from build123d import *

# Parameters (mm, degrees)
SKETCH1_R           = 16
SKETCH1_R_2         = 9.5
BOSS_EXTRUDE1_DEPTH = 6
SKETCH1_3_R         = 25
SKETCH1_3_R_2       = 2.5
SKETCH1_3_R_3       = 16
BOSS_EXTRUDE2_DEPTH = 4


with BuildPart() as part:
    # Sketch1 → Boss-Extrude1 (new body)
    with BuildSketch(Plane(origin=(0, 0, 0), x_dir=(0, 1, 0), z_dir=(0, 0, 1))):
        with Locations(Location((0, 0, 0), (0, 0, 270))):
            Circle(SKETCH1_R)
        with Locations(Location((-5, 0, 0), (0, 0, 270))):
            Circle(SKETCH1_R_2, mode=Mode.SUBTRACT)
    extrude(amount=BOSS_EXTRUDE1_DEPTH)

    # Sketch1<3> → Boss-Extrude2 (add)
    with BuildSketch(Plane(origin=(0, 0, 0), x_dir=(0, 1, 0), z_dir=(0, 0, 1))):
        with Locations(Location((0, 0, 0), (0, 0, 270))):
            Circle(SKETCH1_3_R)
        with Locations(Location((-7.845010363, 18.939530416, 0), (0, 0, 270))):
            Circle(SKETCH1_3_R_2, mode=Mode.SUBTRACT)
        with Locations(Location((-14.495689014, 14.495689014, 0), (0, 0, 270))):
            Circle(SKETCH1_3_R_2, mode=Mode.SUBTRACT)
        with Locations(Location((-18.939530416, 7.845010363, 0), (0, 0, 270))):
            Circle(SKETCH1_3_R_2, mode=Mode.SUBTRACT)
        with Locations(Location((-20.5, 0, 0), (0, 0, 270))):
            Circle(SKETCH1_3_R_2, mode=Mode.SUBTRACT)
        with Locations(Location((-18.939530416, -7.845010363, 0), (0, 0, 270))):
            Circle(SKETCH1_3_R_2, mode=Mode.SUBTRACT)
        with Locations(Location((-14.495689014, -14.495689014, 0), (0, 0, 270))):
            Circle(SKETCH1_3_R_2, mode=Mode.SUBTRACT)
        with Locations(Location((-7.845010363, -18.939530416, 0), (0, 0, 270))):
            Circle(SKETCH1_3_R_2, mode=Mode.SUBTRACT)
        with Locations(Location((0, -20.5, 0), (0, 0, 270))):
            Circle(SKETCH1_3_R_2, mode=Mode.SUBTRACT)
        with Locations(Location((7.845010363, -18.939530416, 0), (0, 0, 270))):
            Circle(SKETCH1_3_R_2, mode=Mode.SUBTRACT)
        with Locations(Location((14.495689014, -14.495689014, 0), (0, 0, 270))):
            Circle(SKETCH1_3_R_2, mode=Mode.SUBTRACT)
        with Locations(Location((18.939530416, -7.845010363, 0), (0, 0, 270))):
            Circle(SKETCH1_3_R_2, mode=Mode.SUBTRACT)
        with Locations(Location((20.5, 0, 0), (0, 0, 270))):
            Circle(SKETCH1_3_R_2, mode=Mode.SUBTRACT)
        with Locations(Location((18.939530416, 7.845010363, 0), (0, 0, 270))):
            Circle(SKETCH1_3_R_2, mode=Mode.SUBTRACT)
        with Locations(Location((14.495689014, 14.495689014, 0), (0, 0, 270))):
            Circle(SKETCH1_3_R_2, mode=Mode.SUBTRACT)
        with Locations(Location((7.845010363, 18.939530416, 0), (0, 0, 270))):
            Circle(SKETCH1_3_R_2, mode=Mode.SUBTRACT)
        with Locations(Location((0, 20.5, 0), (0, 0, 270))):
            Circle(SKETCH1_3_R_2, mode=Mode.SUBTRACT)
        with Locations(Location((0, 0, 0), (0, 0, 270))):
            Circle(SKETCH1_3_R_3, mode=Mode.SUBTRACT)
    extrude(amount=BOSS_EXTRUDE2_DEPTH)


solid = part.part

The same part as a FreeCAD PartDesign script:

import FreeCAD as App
import Part
import Sketcher
from FreeCAD import Vector

doc = App.newDocument("Part")
body = doc.addObject("PartDesign::Body", "Body")

sketch1 = body.newObject("Sketcher::SketchObject", "Sketch")
sketch1.AttachmentSupport = (doc.getObject("XY_Plane"), [""])
sketch1.MapMode = "FlatFace"
sketch1.addGeometry([
    Part.Circle(Vector(0, 0, 0), Vector(0, 0, 1), 16),
    Part.Circle(Vector(0, -5, 0), Vector(0, 0, 1), 10),
], False)
sketch1.addConstraint([
    Sketcher.Constraint("Coincident", 0, 3, -1, 1),
    Sketcher.Constraint("PointOnObject", 1, 3, -2),
    Sketcher.Constraint("Diameter", 0, 32.0),
    Sketcher.Constraint("Diameter", 1, 19.0),
    Sketcher.Constraint("DistanceY", 1, 3, -1, 1, 5.0),
])
pad1 = body.newObject("PartDesign::Pad", "Pad")
pad1.Profile = sketch1
pad1.Length = 6

sketch2 = body.newObject("Sketcher::SketchObject", "Sketch001")
sketch2.AttachmentSupport = (doc.getObject("XY_Plane"), [""])
sketch2.MapMode = "FlatFace"
sketch2.addGeometry([
    Part.Circle(Vector(0, 0, 0), Vector(0, 0, 1), 25),
    Part.Circle(Vector(-14.5, -14.5, 0), Vector(0, 0, 1), 2.5),
    Part.Circle(Vector(-7.8, -18.9, 0), Vector(0, 0, 1), 2.5),
    Part.Circle(Vector(-18.9, -7.8, 0), Vector(0, 0, 1), 2.5),
    Part.Circle(Vector(-20.5, 0, 0), Vector(0, 0, 1), 2.5),
    Part.Circle(Vector(0, -20.5, 0), Vector(0, 0, 1), 2.5),
    Part.Circle(Vector(7.8, -18.9, 0), Vector(0, 0, 1), 2.5),
    Part.Circle(Vector(14.5, -14.5, 0), Vector(0, 0, 1), 2.5),
    Part.Circle(Vector(18.9, -7.8, 0), Vector(0, 0, 1), 2.5),
    Part.Circle(Vector(-18.9, 7.8, 0), Vector(0, 0, 1), 2.5),
    Part.Circle(Vector(-14.5, 14.5, 0), Vector(0, 0, 1), 2.5),
    Part.Circle(Vector(-7.8, 18.9, 0), Vector(0, 0, 1), 2.5),
    Part.Circle(Vector(0, 20.5, 0), Vector(0, 0, 1), 2.5),
    Part.Circle(Vector(0, 0, 0), Vector(0, 0, 1), 16),
    Part.Circle(Vector(20.5, 0, 0), Vector(0, 0, 1), 2.5),
    Part.Circle(Vector(18.9, 7.8, 0), Vector(0, 0, 1), 2.5),
    Part.Circle(Vector(7.8, 18.9, 0), Vector(0, 0, 1), 2.5),
    Part.Circle(Vector(14.5, 14.5, 0), Vector(0, 0, 1), 2.5),
], False)
sketch2.addConstraint([
    Sketcher.Constraint("Coincident", 0, 3, -1, 1),
    Sketcher.Constraint("Coincident", 13, 3, -1, 1),
    Sketcher.Constraint("Equal", 1, 2),
    Sketcher.Constraint("Equal", 2, 3),
    Sketcher.Constraint("Equal", 3, 4),
    Sketcher.Constraint("Equal", 4, 5),
    Sketcher.Constraint("Equal", 5, 6),
    Sketcher.Constraint("Equal", 6, 7),
    Sketcher.Constraint("Equal", 7, 8),
    Sketcher.Constraint("Equal", 8, 9),
    Sketcher.Constraint("Equal", 9, 10),
    Sketcher.Constraint("Equal", 10, 11),
    Sketcher.Constraint("Equal", 11, 12),
    Sketcher.Constraint("Equal", 12, 14),
    Sketcher.Constraint("Equal", 14, 15),
    Sketcher.Constraint("Equal", 15, 16),
    Sketcher.Constraint("Equal", 16, 17),
    Sketcher.Constraint("Symmetric", 8, 3, 9, 3, -1, 1),
    Sketcher.Constraint("Symmetric", 7, 3, 10, 3, -1, 1),
    Sketcher.Constraint("Symmetric", 6, 3, 11, 3, -1, 1),
    Sketcher.Constraint("Symmetric", 5, 3, 12, 3, -1, 1),
    Sketcher.Constraint("Symmetric", 4, 3, 14, 3, -1, 1),
    Sketcher.Constraint("Symmetric", 3, 3, 15, 3, -1, 1),
    Sketcher.Constraint("Symmetric", 2, 3, 16, 3, -1, 1),
    Sketcher.Constraint("Symmetric", 1, 3, 17, 3, -1, 1),
    Sketcher.Constraint("Symmetric", 2, 3, 6, 3, -2),
    Sketcher.Constraint("Symmetric", 1, 3, 7, 3, -2),
    Sketcher.Constraint("Symmetric", 3, 3, 8, 3, -2),
    Sketcher.Constraint("PointOnObject", 4, 3, -1),
    Sketcher.Constraint("PointOnObject", 5, 3, -2),
    Sketcher.Constraint("Diameter", 0, 50.0),
    Sketcher.Constraint("Diameter", 1, 5.0),
    Sketcher.Constraint("Diameter", 13, 32.0),
    Sketcher.Constraint("DistanceX", 4, 3, -1, 1, 20.5),
    Sketcher.Constraint("DistanceY", 5, 3, -1, 1, 20.5),
    Sketcher.Constraint("DistanceX", 1, 3, 6, 3, 22.340699),
    Sketcher.Constraint("DistanceY", 1, 3, 9, 3, 22.340699),
    Sketcher.Constraint("DistanceX", 1, 3, -1, 1, 14.495689),
    Sketcher.Constraint("DistanceY", 1, 3, -1, 1, 14.495689),
    Sketcher.Constraint("DistanceY", 2, 3, -1, 1, 18.93953),
    Sketcher.Constraint("DistanceX", 3, 3, -1, 1, 18.93953),
])
pad2 = body.newObject("PartDesign::Pad", "Pad001")
pad2.Profile = sketch2
pad2.Length = 4

doc.recompute()
